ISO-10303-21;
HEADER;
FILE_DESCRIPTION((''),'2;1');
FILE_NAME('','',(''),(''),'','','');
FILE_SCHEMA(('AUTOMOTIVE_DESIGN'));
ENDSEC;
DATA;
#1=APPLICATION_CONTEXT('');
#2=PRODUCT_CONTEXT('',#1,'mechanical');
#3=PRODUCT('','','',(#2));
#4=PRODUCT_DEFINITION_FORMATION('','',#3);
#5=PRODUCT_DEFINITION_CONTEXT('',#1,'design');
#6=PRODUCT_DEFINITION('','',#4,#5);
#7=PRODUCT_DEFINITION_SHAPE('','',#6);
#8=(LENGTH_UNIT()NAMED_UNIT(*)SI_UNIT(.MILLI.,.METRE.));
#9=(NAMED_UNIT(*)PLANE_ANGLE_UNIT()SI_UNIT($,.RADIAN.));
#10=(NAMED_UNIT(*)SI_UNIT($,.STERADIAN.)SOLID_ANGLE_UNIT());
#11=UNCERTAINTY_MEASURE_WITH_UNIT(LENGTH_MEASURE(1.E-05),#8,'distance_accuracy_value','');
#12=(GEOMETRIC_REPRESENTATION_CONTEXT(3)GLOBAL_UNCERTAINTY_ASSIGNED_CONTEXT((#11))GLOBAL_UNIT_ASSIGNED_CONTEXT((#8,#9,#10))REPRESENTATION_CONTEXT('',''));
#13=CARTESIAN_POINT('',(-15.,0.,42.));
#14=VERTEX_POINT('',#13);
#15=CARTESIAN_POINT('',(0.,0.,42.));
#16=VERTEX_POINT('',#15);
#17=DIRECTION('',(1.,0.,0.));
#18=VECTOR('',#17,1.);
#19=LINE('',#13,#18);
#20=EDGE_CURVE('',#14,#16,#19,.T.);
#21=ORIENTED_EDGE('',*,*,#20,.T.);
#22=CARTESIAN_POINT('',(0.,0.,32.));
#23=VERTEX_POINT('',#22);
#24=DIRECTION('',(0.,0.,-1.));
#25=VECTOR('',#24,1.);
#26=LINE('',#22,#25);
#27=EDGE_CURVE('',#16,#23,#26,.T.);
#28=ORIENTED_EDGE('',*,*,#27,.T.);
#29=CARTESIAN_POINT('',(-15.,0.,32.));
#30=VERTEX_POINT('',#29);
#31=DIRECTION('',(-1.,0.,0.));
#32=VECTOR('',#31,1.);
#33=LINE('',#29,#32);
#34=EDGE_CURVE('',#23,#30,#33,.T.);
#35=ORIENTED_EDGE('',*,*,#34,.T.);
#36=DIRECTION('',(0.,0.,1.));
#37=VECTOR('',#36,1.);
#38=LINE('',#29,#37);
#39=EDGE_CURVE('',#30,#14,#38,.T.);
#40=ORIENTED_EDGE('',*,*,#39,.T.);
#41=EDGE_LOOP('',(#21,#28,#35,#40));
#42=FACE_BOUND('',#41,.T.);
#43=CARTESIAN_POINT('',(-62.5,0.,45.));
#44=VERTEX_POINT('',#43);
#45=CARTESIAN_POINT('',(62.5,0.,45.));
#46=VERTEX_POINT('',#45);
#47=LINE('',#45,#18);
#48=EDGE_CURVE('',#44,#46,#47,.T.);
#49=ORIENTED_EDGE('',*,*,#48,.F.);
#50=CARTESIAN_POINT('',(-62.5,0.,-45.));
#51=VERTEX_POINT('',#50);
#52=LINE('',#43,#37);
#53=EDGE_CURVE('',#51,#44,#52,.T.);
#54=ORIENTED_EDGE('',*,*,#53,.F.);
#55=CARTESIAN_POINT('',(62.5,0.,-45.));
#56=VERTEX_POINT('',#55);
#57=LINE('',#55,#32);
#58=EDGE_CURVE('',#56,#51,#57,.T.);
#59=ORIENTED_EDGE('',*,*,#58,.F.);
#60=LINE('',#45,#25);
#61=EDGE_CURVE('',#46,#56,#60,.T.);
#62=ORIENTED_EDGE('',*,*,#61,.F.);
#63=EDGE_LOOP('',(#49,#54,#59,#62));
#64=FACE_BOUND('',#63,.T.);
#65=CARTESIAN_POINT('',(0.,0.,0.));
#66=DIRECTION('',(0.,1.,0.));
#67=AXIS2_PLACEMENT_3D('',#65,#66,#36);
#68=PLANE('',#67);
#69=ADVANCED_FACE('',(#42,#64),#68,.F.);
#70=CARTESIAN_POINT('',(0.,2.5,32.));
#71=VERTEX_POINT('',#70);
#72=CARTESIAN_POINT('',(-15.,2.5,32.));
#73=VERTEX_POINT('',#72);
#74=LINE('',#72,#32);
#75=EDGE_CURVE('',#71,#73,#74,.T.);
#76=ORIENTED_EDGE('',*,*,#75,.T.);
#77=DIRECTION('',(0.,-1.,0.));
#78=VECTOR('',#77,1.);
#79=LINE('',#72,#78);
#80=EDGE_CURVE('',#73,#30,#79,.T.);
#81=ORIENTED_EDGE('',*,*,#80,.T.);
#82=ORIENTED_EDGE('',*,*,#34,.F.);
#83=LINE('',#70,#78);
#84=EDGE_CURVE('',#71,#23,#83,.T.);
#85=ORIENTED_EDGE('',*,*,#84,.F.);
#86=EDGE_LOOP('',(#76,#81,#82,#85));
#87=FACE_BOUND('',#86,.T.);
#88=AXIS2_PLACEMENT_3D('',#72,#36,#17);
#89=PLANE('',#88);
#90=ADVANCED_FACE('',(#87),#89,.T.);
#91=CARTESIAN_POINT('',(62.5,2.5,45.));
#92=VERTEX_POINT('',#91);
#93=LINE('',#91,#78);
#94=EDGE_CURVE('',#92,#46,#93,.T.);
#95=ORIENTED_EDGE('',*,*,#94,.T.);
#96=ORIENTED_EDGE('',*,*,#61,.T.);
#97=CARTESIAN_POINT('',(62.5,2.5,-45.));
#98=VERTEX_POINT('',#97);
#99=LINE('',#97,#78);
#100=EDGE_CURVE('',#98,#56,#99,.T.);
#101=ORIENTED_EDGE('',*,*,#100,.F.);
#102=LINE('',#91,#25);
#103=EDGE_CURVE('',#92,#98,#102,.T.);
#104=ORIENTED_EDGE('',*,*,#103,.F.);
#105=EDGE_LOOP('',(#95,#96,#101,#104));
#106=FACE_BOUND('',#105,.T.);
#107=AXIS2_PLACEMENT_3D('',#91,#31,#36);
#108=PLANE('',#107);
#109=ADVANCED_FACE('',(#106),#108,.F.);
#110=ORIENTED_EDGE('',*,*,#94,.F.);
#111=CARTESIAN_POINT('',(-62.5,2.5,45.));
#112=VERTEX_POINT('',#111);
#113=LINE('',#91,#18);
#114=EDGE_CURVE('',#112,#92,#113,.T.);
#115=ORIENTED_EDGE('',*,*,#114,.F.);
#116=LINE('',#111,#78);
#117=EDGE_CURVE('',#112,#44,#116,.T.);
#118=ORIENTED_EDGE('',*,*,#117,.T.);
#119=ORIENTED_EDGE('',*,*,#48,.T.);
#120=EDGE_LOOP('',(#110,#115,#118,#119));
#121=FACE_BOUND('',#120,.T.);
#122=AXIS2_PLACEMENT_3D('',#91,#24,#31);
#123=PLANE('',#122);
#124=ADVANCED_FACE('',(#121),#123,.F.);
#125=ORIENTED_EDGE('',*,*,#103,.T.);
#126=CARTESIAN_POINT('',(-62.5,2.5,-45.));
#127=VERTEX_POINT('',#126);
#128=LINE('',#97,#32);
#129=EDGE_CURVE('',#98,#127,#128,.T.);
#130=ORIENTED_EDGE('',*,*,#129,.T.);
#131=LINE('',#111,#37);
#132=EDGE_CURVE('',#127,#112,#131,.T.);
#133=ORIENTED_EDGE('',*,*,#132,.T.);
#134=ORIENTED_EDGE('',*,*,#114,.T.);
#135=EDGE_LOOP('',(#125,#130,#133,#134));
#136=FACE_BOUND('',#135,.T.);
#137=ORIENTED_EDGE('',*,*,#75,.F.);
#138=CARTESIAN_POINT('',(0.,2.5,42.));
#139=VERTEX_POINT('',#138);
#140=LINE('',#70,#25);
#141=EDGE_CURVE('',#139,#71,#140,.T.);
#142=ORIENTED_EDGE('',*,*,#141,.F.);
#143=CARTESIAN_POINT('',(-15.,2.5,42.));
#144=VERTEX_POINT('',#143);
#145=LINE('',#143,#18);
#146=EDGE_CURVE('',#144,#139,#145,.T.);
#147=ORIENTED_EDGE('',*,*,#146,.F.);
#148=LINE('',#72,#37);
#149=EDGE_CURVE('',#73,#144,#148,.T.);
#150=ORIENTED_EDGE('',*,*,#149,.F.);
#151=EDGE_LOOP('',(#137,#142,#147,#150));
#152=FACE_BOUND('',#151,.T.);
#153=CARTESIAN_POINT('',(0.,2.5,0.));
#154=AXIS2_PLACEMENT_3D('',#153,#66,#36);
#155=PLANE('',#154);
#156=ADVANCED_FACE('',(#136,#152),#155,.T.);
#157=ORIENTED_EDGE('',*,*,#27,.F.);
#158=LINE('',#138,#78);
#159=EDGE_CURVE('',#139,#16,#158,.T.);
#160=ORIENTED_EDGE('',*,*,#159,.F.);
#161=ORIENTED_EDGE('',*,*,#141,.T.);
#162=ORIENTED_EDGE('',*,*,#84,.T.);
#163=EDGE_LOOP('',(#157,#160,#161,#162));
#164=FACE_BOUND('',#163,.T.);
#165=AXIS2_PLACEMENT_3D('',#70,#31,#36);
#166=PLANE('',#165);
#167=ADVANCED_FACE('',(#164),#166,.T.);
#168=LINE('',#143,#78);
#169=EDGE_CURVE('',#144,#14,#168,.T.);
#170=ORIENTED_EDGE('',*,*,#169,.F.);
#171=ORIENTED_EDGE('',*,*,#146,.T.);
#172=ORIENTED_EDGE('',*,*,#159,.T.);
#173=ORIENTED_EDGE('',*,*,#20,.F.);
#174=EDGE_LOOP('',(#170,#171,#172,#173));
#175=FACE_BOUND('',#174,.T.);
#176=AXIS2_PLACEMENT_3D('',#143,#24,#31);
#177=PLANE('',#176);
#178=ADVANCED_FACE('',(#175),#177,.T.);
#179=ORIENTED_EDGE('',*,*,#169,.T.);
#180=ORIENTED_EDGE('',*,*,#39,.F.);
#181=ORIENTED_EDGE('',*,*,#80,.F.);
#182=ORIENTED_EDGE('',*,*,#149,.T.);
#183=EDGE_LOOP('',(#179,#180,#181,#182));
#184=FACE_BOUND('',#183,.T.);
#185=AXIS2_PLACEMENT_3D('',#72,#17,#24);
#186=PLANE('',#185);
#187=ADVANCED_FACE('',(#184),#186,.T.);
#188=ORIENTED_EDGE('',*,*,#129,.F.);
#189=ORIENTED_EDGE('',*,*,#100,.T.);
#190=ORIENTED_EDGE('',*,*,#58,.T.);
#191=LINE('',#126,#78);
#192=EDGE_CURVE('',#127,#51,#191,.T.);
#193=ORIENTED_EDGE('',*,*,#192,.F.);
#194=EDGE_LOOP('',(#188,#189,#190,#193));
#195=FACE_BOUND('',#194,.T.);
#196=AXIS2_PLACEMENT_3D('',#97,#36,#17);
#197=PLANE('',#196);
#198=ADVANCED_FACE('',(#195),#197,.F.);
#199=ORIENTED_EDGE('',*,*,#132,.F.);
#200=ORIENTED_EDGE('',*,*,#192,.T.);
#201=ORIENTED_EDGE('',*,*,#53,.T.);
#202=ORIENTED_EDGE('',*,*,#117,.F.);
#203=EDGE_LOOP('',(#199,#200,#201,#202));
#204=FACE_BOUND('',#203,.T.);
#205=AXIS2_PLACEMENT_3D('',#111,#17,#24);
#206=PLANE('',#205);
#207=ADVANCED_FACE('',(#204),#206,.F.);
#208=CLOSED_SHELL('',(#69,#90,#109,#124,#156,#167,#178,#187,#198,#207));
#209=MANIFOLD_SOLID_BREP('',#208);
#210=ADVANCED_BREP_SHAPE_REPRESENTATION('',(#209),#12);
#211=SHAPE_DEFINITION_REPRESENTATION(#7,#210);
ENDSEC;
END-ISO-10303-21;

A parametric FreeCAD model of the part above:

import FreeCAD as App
import Part
import Sketcher

V = App.Vector

doc = App.newDocument("Part")
params = doc.addObject("Spreadsheet::Sheet", "Params")
for row, (alias, value) in enumerate([
    ("sketch1_width", "125 mm"),
    ("sketch1_width2", "15 mm"),
    ("sketch1_height", "90 mm"),
    ("sketch1_height2", "10 mm"),
    ("pad1_length", "2.5 mm"),
], start=1):
    params.set(f"A{row}", alias)
    params.set(f"B{row}", "=" + value)
    params.setAlias(f"B{row}", alias)

body = doc.addObject("PartDesign::Body", "Body")

sketch1 = doc.addObject("Sketcher::SketchObject", "Sketch")
body.addObject(sketch1)
sketch1.AttachmentSupport = (doc.XZ_Plane, [""])
sketch1.MapMode = "FlatFace"
sketch1.addGeometry(Part.LineSegment(V(-62.5, -45, 0), V(-62.5, 45, 0)), False)
sketch1.addGeometry(Part.LineSegment(V(-62.5, 45, 0), V(62.5, 45, 0)), False)
sketch1.addGeometry(Part.LineSegment(V(62.5, 45, 0), V(62.5, -45, 0)), False)
sketch1.addGeometry(Part.LineSegment(V(62.5, -45, 0), V(-62.5, -45, 0)), False)
sketch1.addGeometry(Part.LineSegment(V(0, 42, 0), V(-15, 42, 0)), False)
sketch1.addGeometry(Part.LineSegment(V(-15, 42, 0), V(-15, 32, 0)), False)
sketch1.addGeometry(Part.LineSegment(V(-15, 32, 0), V(0, 32, 0)), False)
sketch1.addGeometry(Part.LineSegment(V(0, 32, 0), V(0, 42, 0)), False)
sketch1.addConstraint(Sketcher.Constraint("Coincident", 0, 2, 1, 1))
sketch1.addConstraint(Sketcher.Constraint("Coincident", 1, 2, 2, 1))
sketch1.addConstraint(Sketcher.Constraint("Coincident", 2, 2, 3, 1))
sketch1.addConstraint(Sketcher.Constraint("Coincident", 3, 2, 0, 1))
sketch1.addConstraint(Sketcher.Constraint("Coincident", 4, 2, 5, 1))
sketch1.addConstraint(Sketcher.Constraint("Coincident", 5, 2, 6, 1))
sketch1.addConstraint(Sketcher.Constraint("Coincident", 6, 2, 7, 1))
sketch1.addConstraint(Sketcher.Constraint("Coincident", 7, 2, 4, 1))
sketch1.addConstraint(Sketcher.Constraint("Vertical", 0))
sketch1.addConstraint(Sketcher.Constraint("Horizontal", 1))
sketch1.addConstraint(Sketcher.Constraint("Vertical", 2))
sketch1.addConstraint(Sketcher.Constraint("Horizontal", 3))
sketch1.addConstraint(Sketcher.Constraint("Horizontal", 4))
sketch1.addConstraint(Sketcher.Constraint("Vertical", 5))
sketch1.addConstraint(Sketcher.Constraint("Horizontal", 6))
sketch1.addConstraint(Sketcher.Constraint("Vertical", 7))
sketch1.addConstraint(Sketcher.Constraint("Symmetric", 0, 2, 2, 2, -1, 1))
sketch1.addConstraint(Sketcher.Constraint("PointOnObject", 6, 2, -2))
sketch1.addConstraint(Sketcher.Constraint("DistanceX", 1, 1, 1, 2, 125.0))
sketch1.addConstraint(Sketcher.Constraint("DistanceX", 4, 2, 4, 1, 15.0))
sketch1.addConstraint(Sketcher.Constraint("DistanceY", 0, 1, 0, 2, 90.0))
sketch1.addConstraint(Sketcher.Constraint("DistanceY", 5, 2, 5, 1, 10.0))
sketch1.addConstraint(Sketcher.Constraint("DistanceY", -1, 1, 4, 2, 42.0))
sketch1.setExpression("Constraints[18]", "Params.sketch1_width")
sketch1.setExpression("Constraints[19]", "Params.sketch1_width2")
sketch1.setExpression("Constraints[20]", "Params.sketch1_height")
sketch1.setExpression("Constraints[21]", "Params.sketch1_height2")
pad1 = doc.addObject("PartDesign::Pad", "Pad")
body.addObject(pad1)
pad1.Profile = sketch1
pad1.setExpression("Length", "Params.pad1_length")
pad1.Reversed = True

doc.recompute()
